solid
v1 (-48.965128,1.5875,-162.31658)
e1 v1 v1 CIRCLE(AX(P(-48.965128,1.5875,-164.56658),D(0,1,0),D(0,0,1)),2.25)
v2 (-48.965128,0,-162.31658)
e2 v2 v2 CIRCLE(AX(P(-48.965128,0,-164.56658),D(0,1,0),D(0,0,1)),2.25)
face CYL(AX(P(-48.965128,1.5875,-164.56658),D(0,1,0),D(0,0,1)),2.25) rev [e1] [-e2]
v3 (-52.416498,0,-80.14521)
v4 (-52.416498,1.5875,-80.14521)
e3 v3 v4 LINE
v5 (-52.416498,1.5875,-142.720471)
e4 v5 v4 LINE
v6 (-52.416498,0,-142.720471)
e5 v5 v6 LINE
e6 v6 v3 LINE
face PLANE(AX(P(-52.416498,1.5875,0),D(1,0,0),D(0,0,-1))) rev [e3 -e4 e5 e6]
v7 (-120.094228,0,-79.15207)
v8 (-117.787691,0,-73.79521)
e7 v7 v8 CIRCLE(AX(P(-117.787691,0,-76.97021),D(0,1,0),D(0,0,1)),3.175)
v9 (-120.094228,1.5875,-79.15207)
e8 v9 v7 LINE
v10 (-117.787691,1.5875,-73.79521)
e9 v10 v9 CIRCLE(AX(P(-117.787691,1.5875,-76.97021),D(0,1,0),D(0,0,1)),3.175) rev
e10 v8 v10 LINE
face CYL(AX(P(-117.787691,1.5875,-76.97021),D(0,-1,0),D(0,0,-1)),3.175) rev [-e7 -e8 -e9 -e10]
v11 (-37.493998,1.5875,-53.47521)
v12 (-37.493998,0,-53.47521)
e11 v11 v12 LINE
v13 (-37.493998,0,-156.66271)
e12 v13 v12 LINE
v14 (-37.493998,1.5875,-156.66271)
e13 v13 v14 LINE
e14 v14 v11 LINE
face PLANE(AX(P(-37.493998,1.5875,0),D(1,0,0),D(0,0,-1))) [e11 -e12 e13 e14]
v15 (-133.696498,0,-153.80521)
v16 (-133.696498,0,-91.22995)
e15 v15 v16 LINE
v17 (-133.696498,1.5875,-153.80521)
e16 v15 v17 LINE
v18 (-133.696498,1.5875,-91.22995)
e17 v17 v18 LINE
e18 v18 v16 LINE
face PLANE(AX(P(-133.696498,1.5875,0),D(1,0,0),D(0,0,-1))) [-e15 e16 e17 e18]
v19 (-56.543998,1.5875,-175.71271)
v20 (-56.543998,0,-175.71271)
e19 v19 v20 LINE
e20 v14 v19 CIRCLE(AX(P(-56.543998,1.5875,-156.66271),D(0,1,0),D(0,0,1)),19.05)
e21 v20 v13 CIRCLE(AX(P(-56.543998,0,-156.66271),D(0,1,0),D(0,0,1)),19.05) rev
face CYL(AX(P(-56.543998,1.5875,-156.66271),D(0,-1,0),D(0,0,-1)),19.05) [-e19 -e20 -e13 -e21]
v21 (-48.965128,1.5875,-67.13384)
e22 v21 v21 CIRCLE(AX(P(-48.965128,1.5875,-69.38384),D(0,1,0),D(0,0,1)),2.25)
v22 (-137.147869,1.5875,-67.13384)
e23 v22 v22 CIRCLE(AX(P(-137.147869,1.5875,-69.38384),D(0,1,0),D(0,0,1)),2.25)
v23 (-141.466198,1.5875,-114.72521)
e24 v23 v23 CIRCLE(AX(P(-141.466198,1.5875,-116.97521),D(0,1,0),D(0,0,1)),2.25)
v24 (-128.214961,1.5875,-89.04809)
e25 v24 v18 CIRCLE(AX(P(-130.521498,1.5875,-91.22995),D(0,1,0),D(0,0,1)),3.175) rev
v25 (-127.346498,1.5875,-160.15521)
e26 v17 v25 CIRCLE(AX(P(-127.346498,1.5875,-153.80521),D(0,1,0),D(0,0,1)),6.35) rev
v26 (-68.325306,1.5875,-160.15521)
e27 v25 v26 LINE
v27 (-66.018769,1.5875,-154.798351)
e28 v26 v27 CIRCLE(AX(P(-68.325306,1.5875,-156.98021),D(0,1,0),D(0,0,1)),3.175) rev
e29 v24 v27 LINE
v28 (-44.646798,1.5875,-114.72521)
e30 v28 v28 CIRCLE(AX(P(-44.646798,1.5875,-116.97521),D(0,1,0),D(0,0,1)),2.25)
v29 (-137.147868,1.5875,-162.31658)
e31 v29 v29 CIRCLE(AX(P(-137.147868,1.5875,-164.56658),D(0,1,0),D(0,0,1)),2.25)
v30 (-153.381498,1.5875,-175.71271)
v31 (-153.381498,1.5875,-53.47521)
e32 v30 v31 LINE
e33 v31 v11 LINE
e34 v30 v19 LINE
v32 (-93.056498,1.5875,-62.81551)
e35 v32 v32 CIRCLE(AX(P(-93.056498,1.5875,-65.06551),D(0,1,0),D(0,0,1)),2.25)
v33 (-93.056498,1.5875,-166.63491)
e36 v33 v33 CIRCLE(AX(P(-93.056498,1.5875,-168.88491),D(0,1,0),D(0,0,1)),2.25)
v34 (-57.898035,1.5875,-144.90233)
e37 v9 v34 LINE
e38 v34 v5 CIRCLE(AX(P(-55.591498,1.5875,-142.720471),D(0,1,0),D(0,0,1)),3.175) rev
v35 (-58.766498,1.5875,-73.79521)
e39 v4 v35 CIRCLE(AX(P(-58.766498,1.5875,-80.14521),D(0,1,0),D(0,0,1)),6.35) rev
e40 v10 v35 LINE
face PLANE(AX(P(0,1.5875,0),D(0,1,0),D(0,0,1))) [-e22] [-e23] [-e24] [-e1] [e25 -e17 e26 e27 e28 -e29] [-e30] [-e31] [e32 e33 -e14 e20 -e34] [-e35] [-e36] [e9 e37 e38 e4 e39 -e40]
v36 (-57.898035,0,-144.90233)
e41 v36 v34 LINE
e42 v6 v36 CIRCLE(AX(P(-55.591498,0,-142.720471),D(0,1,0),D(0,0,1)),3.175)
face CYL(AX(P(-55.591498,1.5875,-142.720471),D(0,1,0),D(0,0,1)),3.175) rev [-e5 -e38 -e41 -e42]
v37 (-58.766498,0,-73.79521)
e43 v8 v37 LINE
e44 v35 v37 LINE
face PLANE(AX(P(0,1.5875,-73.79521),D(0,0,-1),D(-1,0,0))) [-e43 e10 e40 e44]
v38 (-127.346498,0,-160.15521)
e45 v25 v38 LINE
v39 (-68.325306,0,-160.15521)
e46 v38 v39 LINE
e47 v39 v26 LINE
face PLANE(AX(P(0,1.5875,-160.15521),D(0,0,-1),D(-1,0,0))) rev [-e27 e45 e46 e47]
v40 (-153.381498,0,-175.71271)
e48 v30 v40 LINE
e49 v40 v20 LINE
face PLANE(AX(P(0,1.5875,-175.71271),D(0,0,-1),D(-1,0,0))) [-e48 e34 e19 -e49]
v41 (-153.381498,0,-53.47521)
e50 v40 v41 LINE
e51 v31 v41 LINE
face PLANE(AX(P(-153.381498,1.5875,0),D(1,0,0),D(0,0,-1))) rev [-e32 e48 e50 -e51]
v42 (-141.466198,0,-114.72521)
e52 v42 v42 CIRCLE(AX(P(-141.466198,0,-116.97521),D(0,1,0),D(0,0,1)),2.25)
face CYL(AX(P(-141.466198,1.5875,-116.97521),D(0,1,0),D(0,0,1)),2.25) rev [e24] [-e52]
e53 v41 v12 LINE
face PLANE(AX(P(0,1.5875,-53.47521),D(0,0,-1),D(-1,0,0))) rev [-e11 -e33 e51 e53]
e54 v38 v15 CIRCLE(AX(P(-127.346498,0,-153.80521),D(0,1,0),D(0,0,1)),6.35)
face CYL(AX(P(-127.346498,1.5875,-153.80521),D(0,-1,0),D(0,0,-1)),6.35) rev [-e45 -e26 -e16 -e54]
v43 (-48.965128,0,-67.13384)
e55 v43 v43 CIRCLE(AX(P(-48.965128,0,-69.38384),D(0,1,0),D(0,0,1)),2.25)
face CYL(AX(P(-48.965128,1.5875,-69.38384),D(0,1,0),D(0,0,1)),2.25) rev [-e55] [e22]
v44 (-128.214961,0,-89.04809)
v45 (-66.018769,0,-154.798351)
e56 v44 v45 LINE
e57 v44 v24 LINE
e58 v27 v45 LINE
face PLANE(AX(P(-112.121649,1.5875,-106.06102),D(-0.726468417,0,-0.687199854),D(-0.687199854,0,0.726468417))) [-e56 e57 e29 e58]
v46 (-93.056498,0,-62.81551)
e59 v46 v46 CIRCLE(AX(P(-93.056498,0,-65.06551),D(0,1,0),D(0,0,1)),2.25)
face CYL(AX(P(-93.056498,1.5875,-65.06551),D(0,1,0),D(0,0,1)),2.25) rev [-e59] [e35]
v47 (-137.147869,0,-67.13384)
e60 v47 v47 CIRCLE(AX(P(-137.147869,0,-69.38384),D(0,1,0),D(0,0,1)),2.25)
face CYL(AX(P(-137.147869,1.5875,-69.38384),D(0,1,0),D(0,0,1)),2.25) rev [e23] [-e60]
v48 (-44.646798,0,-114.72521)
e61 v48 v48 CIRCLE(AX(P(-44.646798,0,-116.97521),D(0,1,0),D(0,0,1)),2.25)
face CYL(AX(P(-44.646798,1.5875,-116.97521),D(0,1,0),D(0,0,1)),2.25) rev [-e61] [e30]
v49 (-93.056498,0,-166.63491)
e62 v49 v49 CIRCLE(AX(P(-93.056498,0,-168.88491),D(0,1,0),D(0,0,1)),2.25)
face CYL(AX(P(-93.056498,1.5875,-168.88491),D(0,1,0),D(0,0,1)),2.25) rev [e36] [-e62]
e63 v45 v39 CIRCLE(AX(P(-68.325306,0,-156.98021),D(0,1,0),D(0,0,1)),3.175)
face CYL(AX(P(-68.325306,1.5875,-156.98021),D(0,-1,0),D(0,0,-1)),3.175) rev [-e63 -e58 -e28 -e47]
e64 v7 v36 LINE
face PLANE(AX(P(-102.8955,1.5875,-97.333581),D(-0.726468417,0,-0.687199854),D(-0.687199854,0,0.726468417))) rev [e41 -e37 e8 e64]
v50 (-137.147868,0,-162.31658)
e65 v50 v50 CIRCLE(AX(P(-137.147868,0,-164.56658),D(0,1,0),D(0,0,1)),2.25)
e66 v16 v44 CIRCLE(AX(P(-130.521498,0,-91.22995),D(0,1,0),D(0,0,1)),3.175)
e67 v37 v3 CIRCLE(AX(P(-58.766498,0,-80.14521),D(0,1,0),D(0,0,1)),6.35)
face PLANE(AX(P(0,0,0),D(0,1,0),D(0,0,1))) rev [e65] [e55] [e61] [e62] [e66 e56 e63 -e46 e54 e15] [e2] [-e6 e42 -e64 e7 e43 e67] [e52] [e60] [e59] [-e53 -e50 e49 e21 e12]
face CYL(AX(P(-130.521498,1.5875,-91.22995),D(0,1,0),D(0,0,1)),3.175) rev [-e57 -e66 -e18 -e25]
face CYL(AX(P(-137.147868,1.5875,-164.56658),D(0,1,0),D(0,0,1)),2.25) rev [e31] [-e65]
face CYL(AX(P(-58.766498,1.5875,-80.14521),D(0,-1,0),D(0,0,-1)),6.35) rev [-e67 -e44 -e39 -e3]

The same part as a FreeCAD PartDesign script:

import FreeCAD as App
import Part
import Sketcher
from FreeCAD import Vector
Q = App.Units.Quantity


def edges_at(feature, points):
    """Names of the edges that pass closest to the given points."""
    edges = feature.Shape.Edges
    near = lambda p: min(range(len(edges)), key=lambda i: edges[i].distToShape(Part.Vertex(*p))[0])
    return sorted({f"Edge{near(p) + 1}" for p in points})


def add_polygon(sketch, points):
    """Adds a closed chain of lines whose ends are joined by coincident constraints."""
    first, n = sketch.GeometryCount, len(points)
    for a, b in zip(points, points[1:] + points[:1]):
        sketch.addGeometry(Part.LineSegment(App.Vector(*a, 0), App.Vector(*b, 0)), False)
    for i in range(n):
        sketch.addConstraint(Sketcher.Constraint("Coincident", first + i, 2, first + (i + 1) % n, 1))

doc = App.newDocument("Part")
params = doc.addObject("Spreadsheet::Sheet", "Params")
for row, (alias, value) in enumerate([
    ("sketch1_width", "4.5625 in"),
    ("sketch1_height", "4.8125 in"),
    ("pad1_length", "0.0625 in"),
    ("hole_diameter", "4.5 mm"),
    ("fillet_radius", "0.75 in"),
    ("fillet2_radius", "0.25 in"),
    ("fillet3_radius", "0.125 in"),
], start=1):
    params.set(f"A{row}", alias)
    params.set(f"B{row}", "=" + value)
    params.setAlias(f"B{row}", alias)

body = doc.addObject("PartDesign::Body", "Body")

sketch1 = doc.addObject("Sketcher::SketchObject", "Sketch")
body.addObject(sketch1)
sketch1.AttachmentSupport = (doc.XZ_Plane, [""])
sketch1.MapMode = "FlatFace"
add_polygon(sketch1, [(-153, -176), (-153, -53), (-37, -53), (-37, -176)])
add_polygon(sketch1, [(-125, -74), (-52, -151), (-52, -74)])
add_polygon(sketch1, [(-134, -83), (-134, -160), (-61, -160)])
sketch1.addConstraint([
    Sketcher.Constraint("Vertical", 0),
    Sketcher.Constraint("Horizontal", 1),
    Sketcher.Constraint("Vertical", 2),
    Sketcher.Constraint("Horizontal", 3),
    Sketcher.Constraint("Vertical", 5),
    Sketcher.Constraint("Horizontal", 6),
    Sketcher.Constraint("Vertical", 7),
    Sketcher.Constraint("Horizontal", 8),
    Sketcher.Constraint("Parallel", 4, 9),
    Sketcher.Constraint("Equal", 6, 8),
    Sketcher.Constraint("DistanceY", 5, 2, 1, 2, Q("0.8 in")),
    Sketcher.Constraint("DistanceX", 7, 2, 4, 2, Q("3.2 in")),
    Sketcher.Constraint("DistanceY", 7, 2, 6, 2, Q("3.4 in")),
    Sketcher.Constraint("DistanceX", 1, 1, 1, 2, Q("4.5625 in")),
    Sketcher.Constraint("DistanceY", 0, 1, 0, 2, Q("4.8125 in")),
    Sketcher.Constraint("DistanceX", 3, 2, 4, 2, Q("3.975 in")),
    Sketcher.Constraint("DistanceX", 6, 2, 6, 1, Q("72.745029 mm")),
    Sketcher.Constraint("DistanceX", 0, 2, -1, 1, Q("153.381498 mm")),
    Sketcher.Constraint("DistanceY", 4, 2, -1, 1, Q("150.697098 mm")),
    Sketcher.Constraint("DistanceY", 5, 1, 5, 2, Q("76.901888 mm")),
])
sketch1.setExpression("Constraints[23]", "Params.sketch1_width")
sketch1.setExpression("Constraints[24]", "Params.sketch1_height")
pad1 = doc.addObject("PartDesign::Pad", "Pad")
body.addObject(pad1)
pad1.Profile = sketch1
pad1.setExpression("Length", "Params.pad1_length")
pad1.Reversed = True

sketch2 = doc.addObject("Sketcher::SketchObject", "Sketch001")
body.addObject(sketch2)
sketch2.AttachmentSupport = (doc.XZ_Plane, [""])
sketch2.MapMode = "FlatFace"
sketch2.AttachmentOffset = App.Placement(Vector(0, 0, -0.0625 * 25.4), App.Rotation())
sketch2.addGeometry([
    Part.Circle(Vector(-93.1, -65.1, 0), Vector(0, 0, 1), 2.2),
    Part.Circle(Vector(-137.1, -69.4, 0), Vector(0, 0, 1), 2.2),
    Part.Circle(Vector(-141.5, -117, 0), Vector(0, 0, 1), 2.2),
    Part.Circle(Vector(-137.1, -164.6, 0), Vector(0, 0, 1), 2.2),
    Part.Circle(Vector(-93.1, -168.9, 0), Vector(0, 0, 1), 2.2),
    Part.Circle(Vector(-49, -164.6, 0), Vector(0, 0, 1), 2.2),
    Part.Circle(Vector(-44.6, -117, 0), Vector(0, 0, 1), 2.2),
    Part.Circle(Vector(-49, -69.4, 0), Vector(0, 0, 1), 2.2),
], False)
sketch2.addConstraint([
    Sketcher.Constraint("Equal", 0, 1),
    Sketcher.Constraint("Equal", 1, 2),
    Sketcher.Constraint("Equal", 2, 3),
    Sketcher.Constraint("Equal", 3, 4),
    Sketcher.Constraint("Equal", 4, 5),
    Sketcher.Constraint("Equal", 5, 6),
    Sketcher.Constraint("Equal", 6, 7),
    Sketcher.Constraint("Horizontal", 3, 3, 5, 3),
    Sketcher.Constraint("Horizontal", 2, 3, 6, 3),
    Sketcher.Constraint("Horizontal", 1, 3, 7, 3),
    Sketcher.Constraint("Vertical", 1, 3, 3, 3),
    Sketcher.Constraint("Vertical", 0, 3, 4, 3),
    Sketcher.Constraint("Vertical", 5, 3, 7, 3),
    Sketcher.Constraint("Diameter", 0, Q("4.5 mm")),
    Sketcher.Constraint("DistanceX", 0, 3, -1, 1, Q("93.056498 mm")),
    Sketcher.Constraint("DistanceX", 2, 3, -1, 1, Q("141.466198 mm")),
    Sketcher.Constraint("DistanceX", 6, 3, -1, 1, Q("44.646798 mm")),
    Sketcher.Constraint("DistanceY", 2, 3, 0, 3, Q("51.9097 mm")),
    Sketcher.Constraint("DistanceY", 4, 3, 2, 3, Q("51.9097 mm")),
    Sketcher.Constraint("DistanceY", 0, 3, -1, 1, Q("65.06551 mm")),
    Sketcher.Constraint("DistanceX", 1, 3, -1, 1, Q("137.147869 mm")),
    Sketcher.Constraint("DistanceY", 1, 3, -1, 1, Q("69.38384 mm")),
    Sketcher.Constraint("DistanceY", 3, 3, -1, 1, Q("164.56658 mm")),
    Sketcher.Constraint("DistanceX", 7, 3, -1, 1, Q("48.965128 mm")),
])
doc.recompute()
hole = doc.addObject("PartDesign::Hole", "Hole")
body.addObject(hole)
hole.Profile = sketch2
hole.ThreadType = "None"
hole.setExpression("Diameter", "Params.hole_diameter")
hole.DepthType = "ThroughAll"
hole.Reversed = True
doc.recompute()

fillet = doc.addObject("PartDesign::Fillet", "Fillet")
body.addObject(fillet)
fillet.Base = (hole, edges_at(hole, [(-37.494, 0.794, -175.713)]))
fillet.setExpression("Radius", "Params.fillet_radius")
doc.recompute()

fillet2 = doc.addObject("PartDesign::Fillet", "Fillet001")
body.addObject(fillet2)
fillet2.Base = (fillet, edges_at(fillet, [(-133.696, 0.794, -160.155), (-52.416, 0.794, -73.795)]))
fillet2.setExpression("Radius", "Params.fillet2_radius")
doc.recompute()

fillet3 = doc.addObject("PartDesign::Fillet", "Fillet002")
body.addObject(fillet3)
fillet3.Base = (fillet2, edges_at(fillet2, [
    (-133.696, 0.794, -83.253),
    (-60.951, 0.794, -160.155),
    (-125.162, 0.794, -73.795),
    (-52.416, 0.794, -150.697),
]))
fillet3.setExpression("Radius", "Params.fillet3_radius")

doc.recompute()
